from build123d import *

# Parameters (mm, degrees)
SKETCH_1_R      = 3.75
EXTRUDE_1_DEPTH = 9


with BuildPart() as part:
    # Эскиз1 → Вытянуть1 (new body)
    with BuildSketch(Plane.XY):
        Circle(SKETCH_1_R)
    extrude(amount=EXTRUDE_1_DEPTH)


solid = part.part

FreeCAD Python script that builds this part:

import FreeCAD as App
import Part
import Sketcher
from FreeCAD import Vector
Q = App.Units.Quantity

doc = App.newDocument("Part")
params = doc.addObject("Spreadsheet::Sheet", "Params")
for row, (alias, value) in enumerate([
    ("sketch1_diameter", "7.5 mm"),
    ("pad1_length", "9 mm"),
], start=1):
    params.set(f"A{row}", alias)
    params.set(f"B{row}", "=" + value)
    params.setAlias(f"B{row}", alias)

body = doc.addObject("PartDesign::Body", "Body")

# Sketch on XY plane
sketch1 = body.newObject("Sketcher::SketchObject", "Sketch")
sketch1.AttachmentSupport = (doc.getObject("XY_Plane"), [""])
sketch1.MapMode = "FlatFace"
sketch1.addGeometry(Part.Circle(Vector(0, 0, 0), Vector(0, 0, 1), 3.8), False)
sketch1.addConstraint([
    Sketcher.Constraint("Coincident", 0, 3, -1, 1),
    Sketcher.Constraint("Diameter", 0, Q("7.5 mm")),
])
sketch1.setExpression("Constraints[1]", "Params.sketch1_diameter")
pad1 = body.newObject("PartDesign::Pad", "Pad")
pad1.Profile = sketch1
pad1.setExpression("Length", "Params.pad1_length")

doc.recompute()
